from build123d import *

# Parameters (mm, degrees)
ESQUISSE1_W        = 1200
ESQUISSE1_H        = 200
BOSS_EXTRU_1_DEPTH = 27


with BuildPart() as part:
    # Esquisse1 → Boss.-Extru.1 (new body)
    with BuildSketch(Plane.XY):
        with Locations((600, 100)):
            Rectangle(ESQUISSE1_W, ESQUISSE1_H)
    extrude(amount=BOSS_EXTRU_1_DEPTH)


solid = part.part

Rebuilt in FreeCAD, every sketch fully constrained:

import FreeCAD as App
import Part
import Sketcher

V = App.Vector

doc = App.newDocument("Part")
body = doc.addObject("PartDesign::Body", "Body")

# Sketch on XY plane
sketch1 = doc.addObject("Sketcher::SketchObject", "Sketch")
body.addObject(sketch1)
sketch1.AttachmentSupport = (doc.XY_Plane, [""])
sketch1.MapMode = "FlatFace"
sketch1.addGeometry([
    Part.LineSegment(V(0, 200, 0), V(0, 0, 0)),
    Part.LineSegment(V(0, 0, 0), V(1200, 0, 0)),
    Part.LineSegment(V(1200, 0, 0), V(1200, 200, 0)),
    Part.LineSegment(V(1200, 200, 0), V(0, 200, 0)),
], False)
sketch1.addConstraint([
    Sketcher.Constraint("Coincident", 0, 2, 1, 1),
    Sketcher.Constraint("Coincident", 1, 2, 2, 1),
    Sketcher.Constraint("Coincident", 2, 2, 3, 1),
    Sketcher.Constraint("Coincident", 3, 2, 0, 1),
    Sketcher.Constraint("Vertical", 0),
    Sketcher.Constraint("Horizontal", 1),
    Sketcher.Constraint("Vertical", 2),
    Sketcher.Constraint("Horizontal", 3),
    Sketcher.Constraint("Coincident", 0, 2, -1, 1),
    Sketcher.Constraint("DistanceX", 1, 1, 1, 2, 1200.0),
    Sketcher.Constraint("DistanceY", 0, 2, 0, 1, 200.0),
])
pad1 = doc.addObject("PartDesign::Pad", "Pad")
body.addObject(pad1)
pad1.Profile = sketch1
pad1.Length = 27

doc.recompute()
